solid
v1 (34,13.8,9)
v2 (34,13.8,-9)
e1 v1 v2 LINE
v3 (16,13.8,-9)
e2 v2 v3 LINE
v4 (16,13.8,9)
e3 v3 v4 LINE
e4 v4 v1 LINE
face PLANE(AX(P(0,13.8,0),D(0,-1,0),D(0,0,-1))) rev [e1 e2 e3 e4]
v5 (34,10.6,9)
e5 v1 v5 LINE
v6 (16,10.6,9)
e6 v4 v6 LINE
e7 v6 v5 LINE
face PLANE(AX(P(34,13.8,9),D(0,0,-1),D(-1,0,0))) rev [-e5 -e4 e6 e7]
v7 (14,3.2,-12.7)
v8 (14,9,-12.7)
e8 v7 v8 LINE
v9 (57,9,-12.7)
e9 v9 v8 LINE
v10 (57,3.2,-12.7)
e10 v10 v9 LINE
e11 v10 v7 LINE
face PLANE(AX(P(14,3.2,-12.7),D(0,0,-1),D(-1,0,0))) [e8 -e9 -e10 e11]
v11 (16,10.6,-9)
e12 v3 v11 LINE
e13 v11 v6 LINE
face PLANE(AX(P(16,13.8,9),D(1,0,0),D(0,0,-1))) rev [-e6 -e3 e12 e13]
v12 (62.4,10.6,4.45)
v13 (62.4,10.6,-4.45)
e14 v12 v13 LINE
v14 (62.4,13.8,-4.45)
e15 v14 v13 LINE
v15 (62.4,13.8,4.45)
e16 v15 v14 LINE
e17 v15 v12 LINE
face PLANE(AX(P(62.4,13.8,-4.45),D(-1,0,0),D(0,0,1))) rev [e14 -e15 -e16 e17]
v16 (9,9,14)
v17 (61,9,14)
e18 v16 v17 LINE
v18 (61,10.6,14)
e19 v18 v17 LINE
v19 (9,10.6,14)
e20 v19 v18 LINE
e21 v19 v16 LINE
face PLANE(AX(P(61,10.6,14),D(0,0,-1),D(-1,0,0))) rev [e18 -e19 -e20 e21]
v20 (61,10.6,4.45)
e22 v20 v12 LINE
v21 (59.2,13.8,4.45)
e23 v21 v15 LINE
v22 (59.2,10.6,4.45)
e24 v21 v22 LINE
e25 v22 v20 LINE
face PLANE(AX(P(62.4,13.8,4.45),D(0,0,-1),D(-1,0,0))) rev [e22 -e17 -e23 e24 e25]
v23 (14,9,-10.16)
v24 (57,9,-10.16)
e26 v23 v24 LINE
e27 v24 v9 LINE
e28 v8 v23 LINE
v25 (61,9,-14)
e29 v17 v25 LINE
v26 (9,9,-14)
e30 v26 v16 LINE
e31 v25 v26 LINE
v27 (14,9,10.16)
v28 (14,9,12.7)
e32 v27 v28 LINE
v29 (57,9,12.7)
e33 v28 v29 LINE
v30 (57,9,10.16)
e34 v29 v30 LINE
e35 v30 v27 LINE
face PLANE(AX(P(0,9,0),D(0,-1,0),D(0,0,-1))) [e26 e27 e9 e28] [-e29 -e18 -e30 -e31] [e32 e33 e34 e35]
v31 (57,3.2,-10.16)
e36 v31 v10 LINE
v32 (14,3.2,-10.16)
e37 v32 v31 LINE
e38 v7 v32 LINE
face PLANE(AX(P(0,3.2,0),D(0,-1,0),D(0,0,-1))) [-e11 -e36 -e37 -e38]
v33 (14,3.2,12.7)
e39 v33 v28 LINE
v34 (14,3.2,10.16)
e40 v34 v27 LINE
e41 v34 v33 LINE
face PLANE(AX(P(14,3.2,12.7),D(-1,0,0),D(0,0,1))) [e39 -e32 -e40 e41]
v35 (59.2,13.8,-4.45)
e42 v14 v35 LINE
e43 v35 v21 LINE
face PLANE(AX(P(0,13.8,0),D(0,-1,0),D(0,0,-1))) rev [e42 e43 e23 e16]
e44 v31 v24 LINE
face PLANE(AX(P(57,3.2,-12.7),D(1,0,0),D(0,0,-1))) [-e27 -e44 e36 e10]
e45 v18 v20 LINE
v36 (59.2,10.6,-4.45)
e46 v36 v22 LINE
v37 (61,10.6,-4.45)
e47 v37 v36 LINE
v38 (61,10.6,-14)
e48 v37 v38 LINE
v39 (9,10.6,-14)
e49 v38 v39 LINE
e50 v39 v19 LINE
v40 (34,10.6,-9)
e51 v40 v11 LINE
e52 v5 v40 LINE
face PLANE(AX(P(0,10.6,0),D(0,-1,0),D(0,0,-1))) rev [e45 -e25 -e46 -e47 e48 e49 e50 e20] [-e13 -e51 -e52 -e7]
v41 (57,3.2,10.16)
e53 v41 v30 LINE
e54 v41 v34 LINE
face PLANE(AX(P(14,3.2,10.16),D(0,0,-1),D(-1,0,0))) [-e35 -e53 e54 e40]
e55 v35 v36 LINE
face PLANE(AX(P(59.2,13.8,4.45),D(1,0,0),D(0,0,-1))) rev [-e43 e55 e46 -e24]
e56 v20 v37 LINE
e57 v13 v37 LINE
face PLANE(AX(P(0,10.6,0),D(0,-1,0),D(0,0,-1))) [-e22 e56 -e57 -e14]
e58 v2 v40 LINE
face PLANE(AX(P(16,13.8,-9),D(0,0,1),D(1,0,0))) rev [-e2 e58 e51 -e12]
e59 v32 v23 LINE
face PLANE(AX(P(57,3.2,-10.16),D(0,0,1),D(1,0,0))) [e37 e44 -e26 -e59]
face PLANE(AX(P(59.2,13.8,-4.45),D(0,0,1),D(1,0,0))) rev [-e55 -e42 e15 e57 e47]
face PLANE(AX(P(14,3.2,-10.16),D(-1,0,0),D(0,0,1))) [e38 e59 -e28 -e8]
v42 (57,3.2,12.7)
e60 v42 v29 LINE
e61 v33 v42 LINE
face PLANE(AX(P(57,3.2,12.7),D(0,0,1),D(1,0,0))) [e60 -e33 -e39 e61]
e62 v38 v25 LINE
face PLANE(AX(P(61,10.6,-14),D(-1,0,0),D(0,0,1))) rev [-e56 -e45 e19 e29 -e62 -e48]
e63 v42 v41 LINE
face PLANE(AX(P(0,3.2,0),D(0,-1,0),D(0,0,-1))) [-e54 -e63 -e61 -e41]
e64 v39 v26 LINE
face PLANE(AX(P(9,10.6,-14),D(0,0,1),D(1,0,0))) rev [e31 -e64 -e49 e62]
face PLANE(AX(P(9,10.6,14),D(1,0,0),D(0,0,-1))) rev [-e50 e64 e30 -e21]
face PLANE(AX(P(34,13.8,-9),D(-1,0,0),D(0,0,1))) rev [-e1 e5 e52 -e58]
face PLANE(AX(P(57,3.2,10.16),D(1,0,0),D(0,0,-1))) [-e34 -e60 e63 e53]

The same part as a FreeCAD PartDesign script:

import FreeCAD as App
import Part
import Sketcher
from FreeCAD import Vector
Q = App.Units.Quantity


def add_polygon(sketch, points):
    """Adds a closed chain of lines whose ends are joined by coincident constraints."""
    first, n = sketch.GeometryCount, len(points)
    for a, b in zip(points, points[1:] + points[:1]):
        sketch.addGeometry(Part.LineSegment(App.Vector(*a, 0), App.Vector(*b, 0)), False)
    for i in range(n):
        sketch.addConstraint(Sketcher.Constraint("Coincident", first + i, 2, first + (i + 1) % n, 1))

doc = App.newDocument("Part")
body = doc.addObject("PartDesign::Body", "Body")

# Sketch on XZ plane
sketch1 = body.newObject("Sketcher::SketchObject", "Sketch")
sketch1.AttachmentSupport = (doc.getObject("XZ_Plane"), [""])
sketch1.MapMode = "FlatFace"
sketch1.AttachmentOffset = App.Placement(Vector(0, 0, -9), App.Rotation())
add_polygon(sketch1, [(9, -14), (9, 14), (61, 14), (61, -14)])  # lines 0-3
sketch1.addConstraint(Sketcher.Constraint("Vertical", 0))
sketch1.addConstraint(Sketcher.Constraint("Horizontal", 1))
sketch1.addConstraint(Sketcher.Constraint("Vertical", 2))
sketch1.addConstraint(Sketcher.Constraint("Horizontal", 3))
sketch1.addConstraint(Sketcher.Constraint("DistanceX", 1, 1, 1, 2, Q("52 mm")))
sketch1.addConstraint(Sketcher.Constraint("DistanceY", 0, 1, 0, 2, Q("28 mm")))
sketch1.addConstraint(Sketcher.Constraint("DistanceX", -1, 1, 0, 2, Q("9 mm")))
sketch1.addConstraint(Sketcher.Constraint("DistanceY", -1, 1, 0, 2, Q("14 mm")))
pad1 = body.newObject("PartDesign::Pad", "Pad")
pad1.Profile = sketch1
pad1.Length = 1.6
pad1.Reversed = True

# Sketch on XZ plane
sketch2 = body.newObject("Sketcher::SketchObject", "Sketch001")
sketch2.AttachmentSupport = (doc.getObject("XZ_Plane"), [""])
sketch2.MapMode = "FlatFace"
sketch2.AttachmentOffset = App.Placement(Vector(0, 0, -10.6), App.Rotation())
add_polygon(sketch2, [(16, -9), (16, 9), (34, 9), (34, -9)])  # lines 0-3
sketch2.addConstraint(Sketcher.Constraint("Vertical", 0))
sketch2.addConstraint(Sketcher.Constraint("Horizontal", 1))
sketch2.addConstraint(Sketcher.Constraint("Vertical", 2))
sketch2.addConstraint(Sketcher.Constraint("Horizontal", 3))
sketch2.addConstraint(Sketcher.Constraint("Equal", 3, 0))
sketch2.addConstraint(Sketcher.Constraint("DistanceX", 1, 1, 1, 2, Q("18 mm")))
sketch2.addConstraint(Sketcher.Constraint("DistanceX", -1, 1, 0, 2, Q("16 mm")))
sketch2.addConstraint(Sketcher.Constraint("DistanceY", -1, 1, 0, 2, Q("9 mm")))
pad2 = body.newObject("PartDesign::Pad", "Pad001")
pad2.Profile = sketch2
pad2.Length = 3.2
pad2.Reversed = True

# Sketch on XZ plane
sketch3 = body.newObject("Sketcher::SketchObject", "Sketch002")
sketch3.AttachmentSupport = (doc.getObject("XZ_Plane"), [""])
sketch3.MapMode = "FlatFace"
sketch3.AttachmentOffset = App.Placement(Vector(0, 0, -10.6), App.Rotation())
add_polygon(sketch3, [(59.2, -4.5), (59.2, 4.5), (62.4, 4.5), (62.4, -4.5)])  # lines 0-3
sketch3.addConstraint(Sketcher.Constraint("Vertical", 0))
sketch3.addConstraint(Sketcher.Constraint("Horizontal", 1))
sketch3.addConstraint(Sketcher.Constraint("Vertical", 2))
sketch3.addConstraint(Sketcher.Constraint("Horizontal", 3))
sketch3.addConstraint(Sketcher.Constraint("DistanceX", 1, 1, 1, 2, Q("3.2 mm")))
sketch3.addConstraint(Sketcher.Constraint("DistanceY", 0, 1, 0, 2, Q("8.9 mm")))
sketch3.addConstraint(Sketcher.Constraint("DistanceX", -1, 1, 0, 2, Q("59.2 mm")))
sketch3.addConstraint(Sketcher.Constraint("DistanceY", -1, 1, 0, 2, Q("4.45 mm")))
pad3 = body.newObject("PartDesign::Pad", "Pad002")
pad3.Profile = sketch3
pad3.Length = 3.2
pad3.Reversed = True

# Sketch on XZ plane
sketch4 = body.newObject("Sketcher::SketchObject", "Sketch003")
sketch4.AttachmentSupport = (doc.getObject("XZ_Plane"), [""])
sketch4.MapMode = "FlatFace"
sketch4.AttachmentOffset = App.Placement(Vector(0, 0, -9), App.Rotation())
add_polygon(sketch4, [(14, -12.7), (14, -10.2), (57, -10.2), (57, -12.7)])  # lines 0-3
add_polygon(sketch4, [(14, 10.2), (14, 12.7), (57, 12.7), (57, 10.2)])  # lines 4-7
sketch4.addConstraint(Sketcher.Constraint("Vertical", 0))
sketch4.addConstraint(Sketcher.Constraint("Horizontal", 1))
sketch4.addConstraint(Sketcher.Constraint("Vertical", 2))
sketch4.addConstraint(Sketcher.Constraint("Horizontal", 3))
sketch4.addConstraint(Sketcher.Constraint("Vertical", 4))
sketch4.addConstraint(Sketcher.Constraint("Horizontal", 5))
sketch4.addConstraint(Sketcher.Constraint("Vertical", 6))
sketch4.addConstraint(Sketcher.Constraint("Horizontal", 7))
sketch4.addConstraint(Sketcher.Constraint("Symmetric", 3, 2, 4, 2, -1))
sketch4.addConstraint(Sketcher.Constraint("Symmetric", 1, 2, 6, 2, -1))
sketch4.addConstraint(Sketcher.Constraint("DistanceX", 1, 1, 1, 2, Q("43 mm")))
sketch4.addConstraint(Sketcher.Constraint("DistanceX", -1, 1, 0, 2, Q("14 mm")))
sketch4.addConstraint(Sketcher.Constraint("DistanceY", 0, 1, 0, 2, Q("2.54 mm")))
sketch4.addConstraint(Sketcher.Constraint("DistanceY", 2, 2, -1, 1, Q("12.7 mm")))
pad4 = body.newObject("PartDesign::Pad", "Pad003")
pad4.Profile = sketch4
pad4.Length = 5.8

doc.recompute()
